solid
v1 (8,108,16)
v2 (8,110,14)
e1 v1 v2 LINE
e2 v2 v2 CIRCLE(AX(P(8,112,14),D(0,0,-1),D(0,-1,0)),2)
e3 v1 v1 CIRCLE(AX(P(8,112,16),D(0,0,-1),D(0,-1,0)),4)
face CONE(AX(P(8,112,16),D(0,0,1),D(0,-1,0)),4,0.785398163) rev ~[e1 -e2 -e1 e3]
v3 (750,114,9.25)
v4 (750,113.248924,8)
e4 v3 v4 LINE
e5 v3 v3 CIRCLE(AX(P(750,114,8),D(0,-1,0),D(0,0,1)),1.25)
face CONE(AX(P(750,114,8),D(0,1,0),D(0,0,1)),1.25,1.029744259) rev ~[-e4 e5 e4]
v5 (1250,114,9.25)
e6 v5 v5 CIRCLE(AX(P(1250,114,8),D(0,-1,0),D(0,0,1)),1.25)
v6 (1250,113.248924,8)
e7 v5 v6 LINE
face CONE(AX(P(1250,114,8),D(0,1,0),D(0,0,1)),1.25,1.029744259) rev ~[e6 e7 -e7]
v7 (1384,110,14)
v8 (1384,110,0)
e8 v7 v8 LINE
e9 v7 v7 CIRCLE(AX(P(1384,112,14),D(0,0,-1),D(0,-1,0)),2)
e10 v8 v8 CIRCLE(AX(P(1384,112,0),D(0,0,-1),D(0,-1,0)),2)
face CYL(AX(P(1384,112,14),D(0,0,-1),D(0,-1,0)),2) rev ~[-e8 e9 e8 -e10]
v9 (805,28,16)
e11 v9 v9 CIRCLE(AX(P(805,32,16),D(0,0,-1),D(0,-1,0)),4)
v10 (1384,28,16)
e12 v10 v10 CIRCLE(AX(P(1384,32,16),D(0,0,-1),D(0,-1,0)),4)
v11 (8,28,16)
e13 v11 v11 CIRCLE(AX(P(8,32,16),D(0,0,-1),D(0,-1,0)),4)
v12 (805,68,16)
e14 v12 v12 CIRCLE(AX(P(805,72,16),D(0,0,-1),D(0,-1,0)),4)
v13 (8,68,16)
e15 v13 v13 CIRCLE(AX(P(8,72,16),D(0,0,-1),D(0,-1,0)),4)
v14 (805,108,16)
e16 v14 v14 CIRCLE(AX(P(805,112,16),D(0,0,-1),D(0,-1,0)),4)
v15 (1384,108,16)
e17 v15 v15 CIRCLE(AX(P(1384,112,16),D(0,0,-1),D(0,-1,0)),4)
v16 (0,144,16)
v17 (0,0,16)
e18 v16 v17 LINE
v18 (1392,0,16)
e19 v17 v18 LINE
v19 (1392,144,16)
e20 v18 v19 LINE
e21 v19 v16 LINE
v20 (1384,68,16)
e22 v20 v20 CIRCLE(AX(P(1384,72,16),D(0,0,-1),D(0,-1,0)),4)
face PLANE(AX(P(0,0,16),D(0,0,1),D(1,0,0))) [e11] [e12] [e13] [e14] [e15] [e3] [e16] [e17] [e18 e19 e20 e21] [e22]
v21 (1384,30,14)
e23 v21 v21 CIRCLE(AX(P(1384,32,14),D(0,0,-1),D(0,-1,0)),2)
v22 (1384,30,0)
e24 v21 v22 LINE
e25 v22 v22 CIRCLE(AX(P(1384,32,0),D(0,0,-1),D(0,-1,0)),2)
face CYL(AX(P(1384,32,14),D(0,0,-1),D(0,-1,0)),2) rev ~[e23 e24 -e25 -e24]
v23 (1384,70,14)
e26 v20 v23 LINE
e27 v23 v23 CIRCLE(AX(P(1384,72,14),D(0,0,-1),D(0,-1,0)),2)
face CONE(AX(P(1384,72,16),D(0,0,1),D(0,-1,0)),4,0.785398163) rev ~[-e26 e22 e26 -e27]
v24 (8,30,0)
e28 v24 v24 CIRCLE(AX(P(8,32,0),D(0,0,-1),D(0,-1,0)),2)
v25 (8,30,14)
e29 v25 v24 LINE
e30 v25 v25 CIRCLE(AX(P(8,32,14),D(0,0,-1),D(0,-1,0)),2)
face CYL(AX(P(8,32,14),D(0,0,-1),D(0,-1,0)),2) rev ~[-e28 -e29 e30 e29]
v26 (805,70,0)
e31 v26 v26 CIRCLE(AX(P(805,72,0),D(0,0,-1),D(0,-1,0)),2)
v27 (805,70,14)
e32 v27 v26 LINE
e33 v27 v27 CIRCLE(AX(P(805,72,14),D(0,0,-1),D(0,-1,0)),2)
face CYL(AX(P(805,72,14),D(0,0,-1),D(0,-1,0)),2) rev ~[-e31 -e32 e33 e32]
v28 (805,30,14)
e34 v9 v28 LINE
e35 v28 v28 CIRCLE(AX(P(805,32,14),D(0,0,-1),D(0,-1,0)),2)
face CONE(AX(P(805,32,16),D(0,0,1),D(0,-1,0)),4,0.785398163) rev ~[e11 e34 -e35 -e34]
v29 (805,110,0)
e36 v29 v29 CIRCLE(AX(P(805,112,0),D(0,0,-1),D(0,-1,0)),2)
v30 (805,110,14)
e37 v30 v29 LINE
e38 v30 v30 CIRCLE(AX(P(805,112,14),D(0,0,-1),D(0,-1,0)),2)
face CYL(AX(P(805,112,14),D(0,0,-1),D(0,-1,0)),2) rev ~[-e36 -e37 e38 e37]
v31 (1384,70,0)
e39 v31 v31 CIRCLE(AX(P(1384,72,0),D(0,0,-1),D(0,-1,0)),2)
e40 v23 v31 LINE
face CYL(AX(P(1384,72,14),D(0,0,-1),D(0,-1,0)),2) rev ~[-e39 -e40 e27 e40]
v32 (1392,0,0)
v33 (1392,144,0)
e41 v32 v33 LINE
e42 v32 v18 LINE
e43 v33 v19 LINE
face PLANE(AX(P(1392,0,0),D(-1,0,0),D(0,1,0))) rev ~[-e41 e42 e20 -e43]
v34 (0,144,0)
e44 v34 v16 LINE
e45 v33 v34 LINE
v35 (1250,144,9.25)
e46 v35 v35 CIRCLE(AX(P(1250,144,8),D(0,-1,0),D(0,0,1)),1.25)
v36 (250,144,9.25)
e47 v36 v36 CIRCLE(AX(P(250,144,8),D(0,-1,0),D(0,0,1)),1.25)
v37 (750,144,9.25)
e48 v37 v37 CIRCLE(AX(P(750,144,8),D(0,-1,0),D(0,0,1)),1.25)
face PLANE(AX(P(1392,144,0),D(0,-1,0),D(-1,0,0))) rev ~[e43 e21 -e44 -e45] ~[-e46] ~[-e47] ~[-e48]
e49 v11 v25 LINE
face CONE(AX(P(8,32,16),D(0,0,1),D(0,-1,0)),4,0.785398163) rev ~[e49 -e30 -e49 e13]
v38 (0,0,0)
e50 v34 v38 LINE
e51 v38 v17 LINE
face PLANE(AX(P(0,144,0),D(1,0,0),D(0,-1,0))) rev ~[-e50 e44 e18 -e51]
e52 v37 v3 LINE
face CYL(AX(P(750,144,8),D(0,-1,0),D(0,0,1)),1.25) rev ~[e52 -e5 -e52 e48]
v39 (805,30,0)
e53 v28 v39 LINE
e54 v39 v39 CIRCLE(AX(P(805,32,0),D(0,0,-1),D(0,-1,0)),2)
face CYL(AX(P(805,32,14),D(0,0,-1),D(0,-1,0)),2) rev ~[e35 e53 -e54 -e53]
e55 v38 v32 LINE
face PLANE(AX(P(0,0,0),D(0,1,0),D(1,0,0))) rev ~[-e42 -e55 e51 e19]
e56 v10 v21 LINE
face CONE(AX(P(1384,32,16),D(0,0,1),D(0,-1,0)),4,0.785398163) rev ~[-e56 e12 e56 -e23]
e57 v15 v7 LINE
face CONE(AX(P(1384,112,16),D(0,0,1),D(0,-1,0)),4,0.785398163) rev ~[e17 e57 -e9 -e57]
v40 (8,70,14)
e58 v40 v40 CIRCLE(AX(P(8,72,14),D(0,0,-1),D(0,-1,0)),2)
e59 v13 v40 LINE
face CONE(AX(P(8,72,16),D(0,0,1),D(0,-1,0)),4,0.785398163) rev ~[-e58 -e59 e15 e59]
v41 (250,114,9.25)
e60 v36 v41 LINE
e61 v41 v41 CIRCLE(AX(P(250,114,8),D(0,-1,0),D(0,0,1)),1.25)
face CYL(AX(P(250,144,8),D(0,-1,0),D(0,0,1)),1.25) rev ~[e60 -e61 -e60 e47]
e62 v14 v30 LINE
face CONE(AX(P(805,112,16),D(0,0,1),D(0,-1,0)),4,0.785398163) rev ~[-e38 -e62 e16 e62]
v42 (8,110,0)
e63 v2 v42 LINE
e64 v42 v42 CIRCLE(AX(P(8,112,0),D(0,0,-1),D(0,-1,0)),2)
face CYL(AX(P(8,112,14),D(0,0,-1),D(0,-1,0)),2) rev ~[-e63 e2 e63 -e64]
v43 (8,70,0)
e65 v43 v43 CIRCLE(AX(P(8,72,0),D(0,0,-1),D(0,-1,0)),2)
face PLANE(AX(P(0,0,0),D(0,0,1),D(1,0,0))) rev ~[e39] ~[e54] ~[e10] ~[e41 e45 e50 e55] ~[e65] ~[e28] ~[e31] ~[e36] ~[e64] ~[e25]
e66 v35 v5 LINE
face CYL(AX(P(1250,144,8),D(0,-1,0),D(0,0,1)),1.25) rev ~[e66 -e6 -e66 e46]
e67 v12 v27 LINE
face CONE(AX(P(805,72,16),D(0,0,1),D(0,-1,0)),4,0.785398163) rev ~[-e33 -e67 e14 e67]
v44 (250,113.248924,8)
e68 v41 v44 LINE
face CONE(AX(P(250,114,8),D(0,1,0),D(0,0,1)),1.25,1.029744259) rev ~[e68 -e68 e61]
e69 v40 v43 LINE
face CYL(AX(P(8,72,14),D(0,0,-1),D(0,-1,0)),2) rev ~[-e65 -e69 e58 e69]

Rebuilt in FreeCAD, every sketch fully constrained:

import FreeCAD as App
import Part
import Sketcher

V = App.Vector


def add_polygon(sketch, points):
    """Adds a closed chain of lines whose ends are joined by coincident constraints."""
    first, n = sketch.GeometryCount, len(points)
    for a, b in zip(points, points[1:] + points[:1]):
        sketch.addGeometry(Part.LineSegment(App.Vector(*a, 0), App.Vector(*b, 0)), False)
    for i in range(n):
        sketch.addConstraint(Sketcher.Constraint("Coincident", first + i, 2, first + (i + 1) % n, 1))

doc = App.newDocument("Part")
params = doc.addObject("Spreadsheet::Sheet", "Params")
for row, (alias, value) in enumerate([
    ("sketch1_diameter", "3 mm"),
    ("sketch1_width", "1392 mm"),
    ("sketch1_height", "144 mm"),
    ("pad1_length", "16 mm"),
    ("sketch2_diameter", "4 mm"),
    ("hole_diameter", "4 mm"),
    ("hole_csink_diameter", "8 mm"),
    ("sketch3_diameter", "2.5 mm"),
    ("hole2_diameter", "2.5 mm"),
    ("hole2_depth", "30 mm"),
], start=1):
    params.set(f"A{row}", alias)
    params.set(f"B{row}", "=" + value)
    params.setAlias(f"B{row}", alias)

body = doc.addObject("PartDesign::Body", "Body")

sketch1 = body.newObject("Sketcher::SketchObject", "Sketch")
sketch1.AttachmentSupport = (doc.getObject("XY_Plane"), [""])
sketch1.MapMode = "FlatFace"
add_polygon(sketch1, [(0, 144), (0, 0), (1392, 0), (1392, 144)])
sketch1.addGeometry(Part.Circle(V(8, 32, 0), V(0, 0, 1), 1.5), False)
sketch1.addGeometry(Part.Circle(V(1384, 32, 0), V(0, 0, 1), 1.5), False)
sketch1.addGeometry(Part.Circle(V(8, 72, 0), V(0, 0, 1), 1.5), False)
sketch1.addGeometry(Part.Circle(V(8, 112, 0), V(0, 0, 1), 1.5), False)
sketch1.addGeometry(Part.Circle(V(1384, 72, 0), V(0, 0, 1), 1.5), False)
sketch1.addGeometry(Part.Circle(V(1384, 112, 0), V(0, 0, 1), 1.5), False)
sketch1.addConstraint(Sketcher.Constraint("Vertical", 0))
sketch1.addConstraint(Sketcher.Constraint("Horizontal", 1))
sketch1.addConstraint(Sketcher.Constraint("Vertical", 2))
sketch1.addConstraint(Sketcher.Constraint("Horizontal", 3))
sketch1.addConstraint(Sketcher.Constraint("Coincident", 0, 2, -1, 1))
sketch1.addConstraint(Sketcher.Constraint("Equal", 4, 5))
sketch1.addConstraint(Sketcher.Constraint("Equal", 5, 6))
sketch1.addConstraint(Sketcher.Constraint("Equal", 6, 7))
sketch1.addConstraint(Sketcher.Constraint("Equal", 7, 8))
sketch1.addConstraint(Sketcher.Constraint("Equal", 8, 9))
sketch1.addConstraint(Sketcher.Constraint("Horizontal", 4, 3, 5, 3))
sketch1.addConstraint(Sketcher.Constraint("Horizontal", 6, 3, 8, 3))
sketch1.addConstraint(Sketcher.Constraint("Horizontal", 7, 3, 9, 3))
sketch1.addConstraint(Sketcher.Constraint("Vertical", 4, 3, 6, 3))
sketch1.addConstraint(Sketcher.Constraint("Vertical", 6, 3, 7, 3))
sketch1.addConstraint(Sketcher.Constraint("Vertical", 5, 3, 8, 3))
sketch1.addConstraint(Sketcher.Constraint("Vertical", 8, 3, 9, 3))
sketch1.addConstraint(Sketcher.Constraint("Diameter", 4, 3.0))
sketch1.addConstraint(Sketcher.Constraint("DistanceX", 1, 1, 1, 2, 1392.0))
sketch1.addConstraint(Sketcher.Constraint("DistanceY", 0, 2, 0, 1, 144.0))
sketch1.addConstraint(Sketcher.Constraint("DistanceX", -1, 1, 4, 3, 8.0))
sketch1.addConstraint(Sketcher.Constraint("DistanceY", 4, 3, 6, 3, 40.0))
sketch1.addConstraint(Sketcher.Constraint("DistanceY", 6, 3, 7, 3, 40.0))
sketch1.addConstraint(Sketcher.Constraint("DistanceX", 5, 3, 1, 2, 8.0))
sketch1.addConstraint(Sketcher.Constraint("DistanceY", -1, 1, 4, 3, 32.0))
sketch1.setExpression("Constraints[21]", "Params.sketch1_diameter")
sketch1.setExpression("Constraints[22]", "Params.sketch1_width")
sketch1.setExpression("Constraints[23]", "Params.sketch1_height")
pad1 = body.newObject("PartDesign::Pad", "Pad")
pad1.Profile = sketch1
pad1.setExpression("Length", "Params.pad1_length")

sketch2 = body.newObject("Sketcher::SketchObject", "Sketch001")
sketch2.AttachmentSupport = (doc.getObject("XY_Plane"), [""])
sketch2.MapMode = "FlatFace"
sketch2.AttachmentOffset = App.Placement(V(0, 0, 16), App.Rotation())
sketch2.addGeometry(Part.Circle(V(1384, 112, 0), V(0, 0, 1), 2), False)
sketch2.addGeometry(Part.Circle(V(1384, 72, 0), V(0, 0, 1), 2), False)
sketch2.addGeometry(Part.Circle(V(1384, 32, 0), V(0, 0, 1), 2), False)
sketch2.addGeometry(Part.Circle(V(8, 72, 0), V(0, 0, 1), 2), False)
sketch2.addGeometry(Part.Circle(V(8, 32, 0), V(0, 0, 1), 2), False)
sketch2.addGeometry(Part.Circle(V(8, 112, 0), V(0, 0, 1), 2), False)
sketch2.addGeometry(Part.Circle(V(805, 32, 0), V(0, 0, 1), 2), False)
sketch2.addGeometry(Part.Circle(V(805, 112, 0), V(0, 0, 1), 2), False)
sketch2.addGeometry(Part.Circle(V(805, 72, 0), V(0, 0, 1), 2), False)
sketch2.addConstraint(Sketcher.Constraint("Equal", 0, 1))
sketch2.addConstraint(Sketcher.Constraint("Equal", 1, 2))
sketch2.addConstraint(Sketcher.Constraint("Equal", 2, 3))
sketch2.addConstraint(Sketcher.Constraint("Equal", 3, 4))
sketch2.addConstraint(Sketcher.Constraint("Equal", 4, 5))
sketch2.addConstraint(Sketcher.Constraint("Equal", 5, 6))
sketch2.addConstraint(Sketcher.Constraint("Equal", 6, 7))
sketch2.addConstraint(Sketcher.Constraint("Equal", 7, 8))
sketch2.addConstraint(Sketcher.Constraint("Horizontal", 1, 3, 3, 3))
sketch2.addConstraint(Sketcher.Constraint("Horizontal", 2, 3, 4, 3))
sketch2.addConstraint(Sketcher.Constraint("Horizontal", 0, 3, 5, 3))
sketch2.addConstraint(Sketcher.Constraint("Horizontal", 4, 3, 6, 3))
sketch2.addConstraint(Sketcher.Constraint("Horizontal", 5, 3, 7, 3))
sketch2.addConstraint(Sketcher.Constraint("Horizontal", 3, 3, 8, 3))
sketch2.addConstraint(Sketcher.Constraint("Vertical", 0, 3, 1, 3))
sketch2.addConstraint(Sketcher.Constraint("Vertical", 1, 3, 2, 3))
sketch2.addConstraint(Sketcher.Constraint("Vertical", 3, 3, 4, 3))
sketch2.addConstraint(Sketcher.Constraint("Vertical", 4, 3, 5, 3))
sketch2.addConstraint(Sketcher.Constraint("Vertical", 6, 3, 7, 3))
sketch2.addConstraint(Sketcher.Constraint("Vertical", 7, 3, 8, 3))
sketch2.addConstraint(Sketcher.Constraint("Diameter", 0, 4.0))
sketch2.addConstraint(Sketcher.Constraint("DistanceX", -1, 1, 0, 3, 1384.0))
sketch2.addConstraint(Sketcher.Constraint("DistanceY", -1, 1, 0, 3, 112.0))
sketch2.addConstraint(Sketcher.Constraint("DistanceY", -1, 1, 1, 3, 72.0))
sketch2.addConstraint(Sketcher.Constraint("DistanceY", -1, 1, 2, 3, 32.0))
sketch2.addConstraint(Sketcher.Constraint("DistanceX", -1, 1, 3, 3, 8.0))
sketch2.addConstraint(Sketcher.Constraint("DistanceX", -1, 1, 6, 3, 805.0))
sketch2.setExpression("Constraints[20]", "Params.sketch2_diameter")
doc.recompute()
hole = body.newObject("PartDesign::Hole", "Hole")
hole.Profile = sketch2
hole.ThreadType = "None"
hole.setExpression("Diameter", "Params.hole_diameter")
hole.DepthType = "ThroughAll"
hole.HoleCutType = "Countersink"
hole.setExpression("HoleCutDiameter", "Params.hole_csink_diameter")
hole.HoleCutCountersinkAngle = 90

sketch3 = body.newObject("Sketcher::SketchObject", "Sketch002")
sketch3.AttachmentSupport = (doc.getObject("XZ_Plane"), [""])
sketch3.MapMode = "FlatFace"
sketch3.AttachmentOffset = App.Placement(V(0, 0, -144), App.Rotation())
sketch3.addGeometry(Part.Circle(V(250, 8, 0), V(0, 0, 1), 1.2), False)
sketch3.addGeometry(Part.Circle(V(750, 8, 0), V(0, 0, 1), 1.2), False)
sketch3.addGeometry(Part.Circle(V(1250, 8, 0), V(0, 0, 1), 1.2), False)
sketch3.addConstraint(Sketcher.Constraint("Equal", 0, 1))
sketch3.addConstraint(Sketcher.Constraint("Equal", 1, 2))
sketch3.addConstraint(Sketcher.Constraint("Horizontal", 0, 3, 1, 3))
sketch3.addConstraint(Sketcher.Constraint("Horizontal", 1, 3, 2, 3))
sketch3.addConstraint(Sketcher.Constraint("Diameter", 0, 2.5))
sketch3.addConstraint(Sketcher.Constraint("DistanceX", -1, 1, 0, 3, 250.0))
sketch3.addConstraint(Sketcher.Constraint("DistanceY", -1, 1, 0, 3, 8.0))
sketch3.addConstraint(Sketcher.Constraint("DistanceX", -1, 1, 1, 3, 750.0))
sketch3.addConstraint(Sketcher.Constraint("DistanceX", -1, 1, 2, 3, 1250.0))
sketch3.setExpression("Constraints[4]", "Params.sketch3_diameter")
doc.recompute()
hole2 = body.newObject("PartDesign::Hole", "Hole001")
hole2.Profile = sketch3
hole2.ThreadType = "None"
hole2.setExpression("Diameter", "Params.hole2_diameter")
hole2.DepthType = "Dimension"
hole2.setExpression("Depth", "Params.hole2_depth")
hole2.DrillPoint = "Angled"
hole2.DrillPointAngle = 118
hole2.Reversed = True

doc.recompute()
